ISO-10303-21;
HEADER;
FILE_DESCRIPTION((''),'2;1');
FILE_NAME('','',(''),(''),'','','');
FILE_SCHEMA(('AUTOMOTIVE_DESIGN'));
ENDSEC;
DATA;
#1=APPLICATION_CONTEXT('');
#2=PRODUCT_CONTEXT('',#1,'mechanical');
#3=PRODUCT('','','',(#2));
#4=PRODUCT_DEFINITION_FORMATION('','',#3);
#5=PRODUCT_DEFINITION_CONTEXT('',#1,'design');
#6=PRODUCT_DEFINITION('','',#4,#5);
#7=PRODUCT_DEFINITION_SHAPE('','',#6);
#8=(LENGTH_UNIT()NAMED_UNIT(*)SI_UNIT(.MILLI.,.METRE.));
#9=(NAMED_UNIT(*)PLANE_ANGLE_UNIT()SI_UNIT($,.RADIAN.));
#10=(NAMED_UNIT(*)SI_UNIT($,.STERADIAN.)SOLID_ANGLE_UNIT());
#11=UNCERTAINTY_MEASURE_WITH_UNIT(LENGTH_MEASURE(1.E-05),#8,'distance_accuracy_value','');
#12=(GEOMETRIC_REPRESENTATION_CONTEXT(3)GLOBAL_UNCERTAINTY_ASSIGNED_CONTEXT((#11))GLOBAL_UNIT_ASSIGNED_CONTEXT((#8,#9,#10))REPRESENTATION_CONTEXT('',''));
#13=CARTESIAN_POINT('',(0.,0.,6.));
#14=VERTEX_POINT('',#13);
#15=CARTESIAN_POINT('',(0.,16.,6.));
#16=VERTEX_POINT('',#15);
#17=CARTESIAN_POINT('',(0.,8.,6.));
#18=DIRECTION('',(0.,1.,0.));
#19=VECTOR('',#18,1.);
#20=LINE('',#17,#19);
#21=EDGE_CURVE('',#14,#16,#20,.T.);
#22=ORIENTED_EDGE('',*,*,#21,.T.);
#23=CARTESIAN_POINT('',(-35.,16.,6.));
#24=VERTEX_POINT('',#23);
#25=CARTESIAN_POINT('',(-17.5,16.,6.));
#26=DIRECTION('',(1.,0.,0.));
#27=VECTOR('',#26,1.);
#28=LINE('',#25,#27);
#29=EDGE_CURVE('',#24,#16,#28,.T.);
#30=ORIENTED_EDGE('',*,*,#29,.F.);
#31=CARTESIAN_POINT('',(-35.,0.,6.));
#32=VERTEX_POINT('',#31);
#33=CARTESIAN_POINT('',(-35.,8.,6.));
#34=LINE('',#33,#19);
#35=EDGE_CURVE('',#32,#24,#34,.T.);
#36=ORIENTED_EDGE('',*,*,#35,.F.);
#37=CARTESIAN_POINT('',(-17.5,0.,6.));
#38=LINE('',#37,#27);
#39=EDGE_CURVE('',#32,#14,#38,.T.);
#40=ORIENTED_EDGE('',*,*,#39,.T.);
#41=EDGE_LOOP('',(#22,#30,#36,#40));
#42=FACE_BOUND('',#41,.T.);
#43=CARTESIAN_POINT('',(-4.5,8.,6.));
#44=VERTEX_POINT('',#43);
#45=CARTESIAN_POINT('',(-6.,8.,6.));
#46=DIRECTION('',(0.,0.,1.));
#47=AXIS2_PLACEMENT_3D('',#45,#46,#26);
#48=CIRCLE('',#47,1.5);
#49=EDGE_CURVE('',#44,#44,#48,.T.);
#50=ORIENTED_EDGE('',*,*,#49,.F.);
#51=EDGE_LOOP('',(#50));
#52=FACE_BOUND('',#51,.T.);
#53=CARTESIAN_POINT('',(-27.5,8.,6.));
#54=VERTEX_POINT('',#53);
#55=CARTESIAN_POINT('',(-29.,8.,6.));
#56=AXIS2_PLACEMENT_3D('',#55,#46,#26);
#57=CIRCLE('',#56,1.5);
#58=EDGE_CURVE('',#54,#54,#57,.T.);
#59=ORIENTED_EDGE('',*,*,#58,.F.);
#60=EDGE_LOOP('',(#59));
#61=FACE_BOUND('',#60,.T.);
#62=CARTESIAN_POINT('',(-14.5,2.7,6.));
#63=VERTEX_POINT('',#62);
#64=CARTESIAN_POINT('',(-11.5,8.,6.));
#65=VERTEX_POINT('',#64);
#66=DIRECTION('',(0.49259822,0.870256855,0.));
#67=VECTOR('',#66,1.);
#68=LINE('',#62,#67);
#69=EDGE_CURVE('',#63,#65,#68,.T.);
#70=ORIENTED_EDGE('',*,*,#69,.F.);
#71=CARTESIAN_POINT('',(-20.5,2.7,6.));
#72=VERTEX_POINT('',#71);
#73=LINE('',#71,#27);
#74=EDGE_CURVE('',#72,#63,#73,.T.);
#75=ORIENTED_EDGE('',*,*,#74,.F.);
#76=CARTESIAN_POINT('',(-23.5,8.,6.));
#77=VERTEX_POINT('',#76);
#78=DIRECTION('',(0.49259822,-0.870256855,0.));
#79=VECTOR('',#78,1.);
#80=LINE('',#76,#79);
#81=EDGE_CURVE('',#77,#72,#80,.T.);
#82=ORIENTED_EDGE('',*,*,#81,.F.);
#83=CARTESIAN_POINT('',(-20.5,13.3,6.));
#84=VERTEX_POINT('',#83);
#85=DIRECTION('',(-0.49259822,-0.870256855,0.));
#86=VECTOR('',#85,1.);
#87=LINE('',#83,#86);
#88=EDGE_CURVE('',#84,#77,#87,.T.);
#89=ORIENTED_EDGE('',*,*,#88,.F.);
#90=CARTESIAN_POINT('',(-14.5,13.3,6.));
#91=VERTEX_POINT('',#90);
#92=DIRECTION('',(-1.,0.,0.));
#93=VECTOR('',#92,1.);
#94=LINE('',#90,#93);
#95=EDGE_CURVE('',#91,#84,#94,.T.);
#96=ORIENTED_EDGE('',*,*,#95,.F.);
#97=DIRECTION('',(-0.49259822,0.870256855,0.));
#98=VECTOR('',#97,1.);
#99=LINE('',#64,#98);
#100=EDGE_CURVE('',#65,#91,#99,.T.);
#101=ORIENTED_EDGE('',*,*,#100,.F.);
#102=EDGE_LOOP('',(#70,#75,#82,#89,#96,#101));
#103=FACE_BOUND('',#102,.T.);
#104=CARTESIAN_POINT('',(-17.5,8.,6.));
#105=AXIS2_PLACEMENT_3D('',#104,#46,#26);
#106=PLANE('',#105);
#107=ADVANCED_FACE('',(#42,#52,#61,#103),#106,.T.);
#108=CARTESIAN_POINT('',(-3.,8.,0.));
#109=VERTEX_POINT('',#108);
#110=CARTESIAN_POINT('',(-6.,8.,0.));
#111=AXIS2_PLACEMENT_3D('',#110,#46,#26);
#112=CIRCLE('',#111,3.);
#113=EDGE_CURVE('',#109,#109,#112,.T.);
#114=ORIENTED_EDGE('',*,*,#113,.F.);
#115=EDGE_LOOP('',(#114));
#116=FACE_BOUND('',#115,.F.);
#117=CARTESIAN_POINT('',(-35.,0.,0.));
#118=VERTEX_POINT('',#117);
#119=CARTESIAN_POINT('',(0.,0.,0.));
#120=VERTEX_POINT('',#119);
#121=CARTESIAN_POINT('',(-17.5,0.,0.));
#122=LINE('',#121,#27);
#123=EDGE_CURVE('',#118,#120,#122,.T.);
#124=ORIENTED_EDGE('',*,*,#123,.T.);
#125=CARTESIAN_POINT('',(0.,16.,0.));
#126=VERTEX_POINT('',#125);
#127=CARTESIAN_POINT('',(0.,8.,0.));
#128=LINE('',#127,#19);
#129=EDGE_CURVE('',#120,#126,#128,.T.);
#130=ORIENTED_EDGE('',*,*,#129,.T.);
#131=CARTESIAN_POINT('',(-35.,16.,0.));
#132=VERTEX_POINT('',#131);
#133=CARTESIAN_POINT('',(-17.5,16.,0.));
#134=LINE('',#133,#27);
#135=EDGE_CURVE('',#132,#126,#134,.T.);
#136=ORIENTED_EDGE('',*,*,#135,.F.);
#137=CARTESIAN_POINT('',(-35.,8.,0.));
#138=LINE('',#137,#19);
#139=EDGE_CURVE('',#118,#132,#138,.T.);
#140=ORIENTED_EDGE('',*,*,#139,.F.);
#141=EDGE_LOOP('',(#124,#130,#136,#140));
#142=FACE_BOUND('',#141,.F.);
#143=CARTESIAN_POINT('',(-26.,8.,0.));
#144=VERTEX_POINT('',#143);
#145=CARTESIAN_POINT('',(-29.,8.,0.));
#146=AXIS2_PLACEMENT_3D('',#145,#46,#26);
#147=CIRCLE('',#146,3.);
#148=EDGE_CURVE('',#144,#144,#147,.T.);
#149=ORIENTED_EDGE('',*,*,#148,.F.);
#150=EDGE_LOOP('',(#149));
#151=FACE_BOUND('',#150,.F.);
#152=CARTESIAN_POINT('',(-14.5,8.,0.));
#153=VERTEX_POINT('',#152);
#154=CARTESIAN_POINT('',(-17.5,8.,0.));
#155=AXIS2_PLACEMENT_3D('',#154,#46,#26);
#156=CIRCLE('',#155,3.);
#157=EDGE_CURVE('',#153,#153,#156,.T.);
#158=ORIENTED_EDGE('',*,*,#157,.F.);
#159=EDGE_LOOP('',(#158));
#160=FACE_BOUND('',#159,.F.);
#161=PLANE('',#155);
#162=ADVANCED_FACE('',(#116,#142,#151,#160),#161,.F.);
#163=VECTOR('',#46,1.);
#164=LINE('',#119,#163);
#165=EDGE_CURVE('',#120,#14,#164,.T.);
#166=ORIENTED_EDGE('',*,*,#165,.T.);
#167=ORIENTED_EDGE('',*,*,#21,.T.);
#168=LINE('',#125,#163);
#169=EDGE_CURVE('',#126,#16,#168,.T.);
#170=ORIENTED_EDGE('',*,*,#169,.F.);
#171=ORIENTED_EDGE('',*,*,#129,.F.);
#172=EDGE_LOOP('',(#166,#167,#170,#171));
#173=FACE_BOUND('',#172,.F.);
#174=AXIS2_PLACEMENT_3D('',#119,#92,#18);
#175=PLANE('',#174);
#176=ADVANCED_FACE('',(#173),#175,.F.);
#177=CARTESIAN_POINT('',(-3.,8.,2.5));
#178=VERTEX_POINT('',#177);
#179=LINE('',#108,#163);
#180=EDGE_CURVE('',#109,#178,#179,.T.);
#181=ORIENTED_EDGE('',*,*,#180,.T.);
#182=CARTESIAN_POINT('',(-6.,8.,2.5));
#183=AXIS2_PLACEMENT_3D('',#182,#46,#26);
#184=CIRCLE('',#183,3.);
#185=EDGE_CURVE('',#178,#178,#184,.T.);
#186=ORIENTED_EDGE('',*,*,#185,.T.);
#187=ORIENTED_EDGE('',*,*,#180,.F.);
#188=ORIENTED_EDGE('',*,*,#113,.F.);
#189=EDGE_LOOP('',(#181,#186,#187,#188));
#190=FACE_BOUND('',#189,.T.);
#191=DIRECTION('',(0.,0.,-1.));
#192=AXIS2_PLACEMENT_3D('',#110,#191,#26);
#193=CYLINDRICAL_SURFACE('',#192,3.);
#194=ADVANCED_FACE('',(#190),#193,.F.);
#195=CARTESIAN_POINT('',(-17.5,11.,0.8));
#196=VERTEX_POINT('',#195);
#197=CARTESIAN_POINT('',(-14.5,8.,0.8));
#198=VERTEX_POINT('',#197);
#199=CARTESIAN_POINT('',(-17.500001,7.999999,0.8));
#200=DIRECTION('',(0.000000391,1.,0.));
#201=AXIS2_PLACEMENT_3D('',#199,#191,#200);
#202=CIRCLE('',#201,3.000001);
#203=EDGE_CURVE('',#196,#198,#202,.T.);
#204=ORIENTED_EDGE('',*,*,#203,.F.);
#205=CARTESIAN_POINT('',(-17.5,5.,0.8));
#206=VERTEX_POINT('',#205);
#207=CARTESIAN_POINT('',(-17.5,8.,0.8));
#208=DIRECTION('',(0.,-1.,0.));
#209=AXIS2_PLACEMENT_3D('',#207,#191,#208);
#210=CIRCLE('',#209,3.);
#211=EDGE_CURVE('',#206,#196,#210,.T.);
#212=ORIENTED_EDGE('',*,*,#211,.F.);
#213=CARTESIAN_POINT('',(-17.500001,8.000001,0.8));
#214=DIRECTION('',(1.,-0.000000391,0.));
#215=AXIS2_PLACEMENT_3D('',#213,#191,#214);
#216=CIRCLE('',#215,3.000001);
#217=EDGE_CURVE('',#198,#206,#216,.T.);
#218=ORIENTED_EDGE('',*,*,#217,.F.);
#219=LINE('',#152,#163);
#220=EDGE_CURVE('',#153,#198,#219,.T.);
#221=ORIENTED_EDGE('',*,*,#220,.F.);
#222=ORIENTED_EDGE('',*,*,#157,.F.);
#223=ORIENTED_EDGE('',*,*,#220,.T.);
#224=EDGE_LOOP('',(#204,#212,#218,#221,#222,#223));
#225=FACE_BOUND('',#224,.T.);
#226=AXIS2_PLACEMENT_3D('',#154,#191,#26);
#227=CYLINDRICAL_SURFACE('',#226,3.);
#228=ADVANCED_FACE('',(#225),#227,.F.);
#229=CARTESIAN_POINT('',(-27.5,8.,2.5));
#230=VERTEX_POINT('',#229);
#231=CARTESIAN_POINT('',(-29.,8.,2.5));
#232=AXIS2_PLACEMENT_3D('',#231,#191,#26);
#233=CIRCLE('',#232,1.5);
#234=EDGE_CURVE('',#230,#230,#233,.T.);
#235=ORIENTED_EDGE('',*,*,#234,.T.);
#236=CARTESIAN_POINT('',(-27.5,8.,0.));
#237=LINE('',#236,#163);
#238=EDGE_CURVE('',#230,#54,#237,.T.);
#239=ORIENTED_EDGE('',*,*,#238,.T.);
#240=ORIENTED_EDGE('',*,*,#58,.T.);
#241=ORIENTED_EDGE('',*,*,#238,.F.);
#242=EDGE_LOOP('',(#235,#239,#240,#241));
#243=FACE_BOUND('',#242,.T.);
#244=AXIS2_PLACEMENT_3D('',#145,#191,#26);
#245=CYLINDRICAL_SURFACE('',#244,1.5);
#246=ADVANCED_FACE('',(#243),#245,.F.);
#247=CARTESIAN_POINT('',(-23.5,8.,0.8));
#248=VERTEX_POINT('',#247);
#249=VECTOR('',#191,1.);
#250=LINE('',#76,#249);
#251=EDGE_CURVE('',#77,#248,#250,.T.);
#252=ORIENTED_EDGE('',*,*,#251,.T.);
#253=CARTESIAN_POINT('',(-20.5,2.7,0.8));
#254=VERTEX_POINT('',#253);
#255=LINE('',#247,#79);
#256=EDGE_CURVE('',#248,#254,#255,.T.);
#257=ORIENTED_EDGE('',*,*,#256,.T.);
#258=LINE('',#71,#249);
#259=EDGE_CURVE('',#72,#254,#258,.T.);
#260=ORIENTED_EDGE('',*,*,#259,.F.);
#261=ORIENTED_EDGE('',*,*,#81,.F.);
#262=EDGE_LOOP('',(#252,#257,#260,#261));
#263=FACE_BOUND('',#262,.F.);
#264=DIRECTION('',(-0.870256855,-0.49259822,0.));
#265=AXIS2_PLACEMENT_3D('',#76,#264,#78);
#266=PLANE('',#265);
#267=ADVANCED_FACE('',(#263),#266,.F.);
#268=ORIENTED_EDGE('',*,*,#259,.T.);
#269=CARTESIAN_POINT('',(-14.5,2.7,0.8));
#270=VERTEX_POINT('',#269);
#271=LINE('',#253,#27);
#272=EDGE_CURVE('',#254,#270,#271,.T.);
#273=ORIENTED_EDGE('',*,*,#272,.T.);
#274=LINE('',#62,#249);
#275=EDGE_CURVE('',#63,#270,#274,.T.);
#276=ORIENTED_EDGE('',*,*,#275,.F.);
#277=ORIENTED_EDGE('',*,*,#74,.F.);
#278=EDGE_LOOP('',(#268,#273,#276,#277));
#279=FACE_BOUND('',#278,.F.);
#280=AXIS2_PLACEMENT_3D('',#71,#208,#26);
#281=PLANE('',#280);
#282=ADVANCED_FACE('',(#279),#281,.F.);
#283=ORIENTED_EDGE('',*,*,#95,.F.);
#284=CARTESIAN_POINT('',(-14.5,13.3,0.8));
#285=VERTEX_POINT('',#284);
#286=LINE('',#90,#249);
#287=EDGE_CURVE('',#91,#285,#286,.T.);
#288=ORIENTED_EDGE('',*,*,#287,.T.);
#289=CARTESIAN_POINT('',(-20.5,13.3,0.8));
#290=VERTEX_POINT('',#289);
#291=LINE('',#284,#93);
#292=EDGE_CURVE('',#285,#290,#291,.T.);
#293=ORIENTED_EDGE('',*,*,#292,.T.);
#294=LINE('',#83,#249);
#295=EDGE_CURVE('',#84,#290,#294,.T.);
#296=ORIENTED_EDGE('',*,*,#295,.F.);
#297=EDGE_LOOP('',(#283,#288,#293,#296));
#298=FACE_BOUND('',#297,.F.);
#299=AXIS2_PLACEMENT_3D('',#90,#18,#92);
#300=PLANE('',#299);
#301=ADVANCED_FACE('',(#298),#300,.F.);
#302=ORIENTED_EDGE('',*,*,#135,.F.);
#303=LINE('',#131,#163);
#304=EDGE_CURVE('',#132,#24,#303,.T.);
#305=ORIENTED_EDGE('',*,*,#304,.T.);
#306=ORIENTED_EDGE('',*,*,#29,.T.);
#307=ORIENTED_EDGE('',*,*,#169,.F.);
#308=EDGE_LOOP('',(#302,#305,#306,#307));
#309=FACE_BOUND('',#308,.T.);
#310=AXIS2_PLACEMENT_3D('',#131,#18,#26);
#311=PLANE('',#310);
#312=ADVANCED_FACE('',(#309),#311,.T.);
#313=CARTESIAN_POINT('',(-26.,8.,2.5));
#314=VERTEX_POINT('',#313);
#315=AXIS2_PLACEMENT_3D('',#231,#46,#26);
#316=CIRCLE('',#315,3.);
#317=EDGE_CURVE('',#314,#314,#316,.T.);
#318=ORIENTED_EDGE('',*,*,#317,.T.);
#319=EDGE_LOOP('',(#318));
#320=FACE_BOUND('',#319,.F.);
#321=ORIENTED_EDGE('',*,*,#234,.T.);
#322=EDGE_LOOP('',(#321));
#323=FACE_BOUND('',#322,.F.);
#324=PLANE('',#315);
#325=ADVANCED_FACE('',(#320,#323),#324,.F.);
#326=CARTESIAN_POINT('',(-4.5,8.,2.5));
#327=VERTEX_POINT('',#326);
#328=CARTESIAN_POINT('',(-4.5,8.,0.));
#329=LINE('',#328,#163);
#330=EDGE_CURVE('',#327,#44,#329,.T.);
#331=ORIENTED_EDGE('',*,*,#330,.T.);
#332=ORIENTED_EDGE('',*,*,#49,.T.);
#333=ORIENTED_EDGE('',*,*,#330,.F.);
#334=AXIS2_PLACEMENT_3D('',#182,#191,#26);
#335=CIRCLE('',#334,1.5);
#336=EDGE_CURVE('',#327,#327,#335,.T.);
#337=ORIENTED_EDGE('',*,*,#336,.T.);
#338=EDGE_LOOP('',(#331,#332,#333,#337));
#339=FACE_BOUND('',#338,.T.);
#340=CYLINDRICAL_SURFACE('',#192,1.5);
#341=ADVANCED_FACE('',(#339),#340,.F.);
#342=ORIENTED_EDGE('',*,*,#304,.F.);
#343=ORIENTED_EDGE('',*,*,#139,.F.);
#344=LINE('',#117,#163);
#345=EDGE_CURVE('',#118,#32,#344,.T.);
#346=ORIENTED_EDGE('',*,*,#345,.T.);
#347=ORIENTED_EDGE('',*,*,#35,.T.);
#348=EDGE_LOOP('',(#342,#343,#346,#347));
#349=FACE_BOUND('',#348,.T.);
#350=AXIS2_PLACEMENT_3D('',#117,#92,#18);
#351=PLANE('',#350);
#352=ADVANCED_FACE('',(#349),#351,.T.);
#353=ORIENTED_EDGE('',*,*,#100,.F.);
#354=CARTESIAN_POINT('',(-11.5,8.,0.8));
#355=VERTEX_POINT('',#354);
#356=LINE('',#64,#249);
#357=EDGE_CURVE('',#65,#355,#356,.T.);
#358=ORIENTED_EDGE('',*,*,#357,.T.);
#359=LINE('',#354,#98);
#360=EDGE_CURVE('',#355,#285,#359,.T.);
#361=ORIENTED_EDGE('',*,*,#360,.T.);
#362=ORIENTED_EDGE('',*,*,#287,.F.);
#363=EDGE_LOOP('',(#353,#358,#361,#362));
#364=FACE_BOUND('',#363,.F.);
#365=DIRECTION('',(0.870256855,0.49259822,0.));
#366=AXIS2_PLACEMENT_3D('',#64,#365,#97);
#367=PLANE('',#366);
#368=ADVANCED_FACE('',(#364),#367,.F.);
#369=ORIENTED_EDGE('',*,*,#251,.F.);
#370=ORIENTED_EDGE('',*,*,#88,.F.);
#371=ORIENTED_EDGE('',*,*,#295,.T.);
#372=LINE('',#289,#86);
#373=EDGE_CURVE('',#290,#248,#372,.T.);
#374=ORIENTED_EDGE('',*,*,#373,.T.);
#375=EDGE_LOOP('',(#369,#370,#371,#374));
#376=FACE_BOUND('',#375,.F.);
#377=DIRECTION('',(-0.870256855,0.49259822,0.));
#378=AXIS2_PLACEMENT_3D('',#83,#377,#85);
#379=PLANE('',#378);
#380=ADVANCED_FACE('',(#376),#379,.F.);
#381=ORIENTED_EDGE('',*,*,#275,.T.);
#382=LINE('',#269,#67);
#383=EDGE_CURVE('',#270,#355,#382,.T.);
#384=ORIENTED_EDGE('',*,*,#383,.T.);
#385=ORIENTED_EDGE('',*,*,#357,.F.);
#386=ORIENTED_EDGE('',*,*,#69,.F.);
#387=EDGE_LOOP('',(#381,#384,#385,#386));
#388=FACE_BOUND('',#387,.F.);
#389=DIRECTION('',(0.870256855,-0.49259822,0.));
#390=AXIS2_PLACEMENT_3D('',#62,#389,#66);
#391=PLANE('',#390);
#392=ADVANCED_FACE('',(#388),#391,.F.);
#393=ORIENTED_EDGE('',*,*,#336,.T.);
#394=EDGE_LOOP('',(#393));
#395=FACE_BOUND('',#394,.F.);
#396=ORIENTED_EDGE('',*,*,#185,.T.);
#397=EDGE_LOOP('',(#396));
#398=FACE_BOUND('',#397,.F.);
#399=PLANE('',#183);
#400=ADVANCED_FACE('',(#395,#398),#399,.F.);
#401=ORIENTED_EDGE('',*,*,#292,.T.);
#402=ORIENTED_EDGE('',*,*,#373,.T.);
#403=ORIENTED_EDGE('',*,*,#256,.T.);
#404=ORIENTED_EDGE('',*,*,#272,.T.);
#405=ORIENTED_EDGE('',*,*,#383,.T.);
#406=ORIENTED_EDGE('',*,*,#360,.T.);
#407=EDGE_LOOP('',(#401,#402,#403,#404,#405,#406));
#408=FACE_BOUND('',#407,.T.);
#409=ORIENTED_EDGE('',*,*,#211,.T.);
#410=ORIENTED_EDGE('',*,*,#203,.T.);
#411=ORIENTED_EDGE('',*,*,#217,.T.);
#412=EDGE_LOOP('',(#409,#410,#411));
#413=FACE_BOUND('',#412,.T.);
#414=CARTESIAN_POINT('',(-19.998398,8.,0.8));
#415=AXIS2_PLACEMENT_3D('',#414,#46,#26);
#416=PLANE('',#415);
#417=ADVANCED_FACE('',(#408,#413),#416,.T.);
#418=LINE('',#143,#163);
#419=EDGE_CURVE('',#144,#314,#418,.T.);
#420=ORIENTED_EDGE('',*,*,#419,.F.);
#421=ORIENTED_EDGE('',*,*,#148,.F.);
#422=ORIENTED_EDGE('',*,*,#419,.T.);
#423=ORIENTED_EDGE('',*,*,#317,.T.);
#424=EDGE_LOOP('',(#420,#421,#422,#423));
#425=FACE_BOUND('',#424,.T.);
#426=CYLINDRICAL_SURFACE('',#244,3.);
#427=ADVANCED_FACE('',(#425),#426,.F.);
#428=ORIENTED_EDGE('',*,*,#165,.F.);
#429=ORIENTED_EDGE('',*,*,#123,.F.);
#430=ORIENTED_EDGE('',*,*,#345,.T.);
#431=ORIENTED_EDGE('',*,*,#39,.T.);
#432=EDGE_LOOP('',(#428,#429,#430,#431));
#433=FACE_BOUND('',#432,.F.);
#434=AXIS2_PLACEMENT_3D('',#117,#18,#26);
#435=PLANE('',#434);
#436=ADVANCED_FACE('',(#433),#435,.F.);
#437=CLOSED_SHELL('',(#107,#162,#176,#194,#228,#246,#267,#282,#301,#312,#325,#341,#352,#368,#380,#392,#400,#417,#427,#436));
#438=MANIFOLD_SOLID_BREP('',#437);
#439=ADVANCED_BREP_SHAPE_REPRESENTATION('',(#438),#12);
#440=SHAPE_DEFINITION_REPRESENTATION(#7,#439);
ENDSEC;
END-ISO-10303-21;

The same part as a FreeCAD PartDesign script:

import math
import FreeCAD as App
import Part
import Sketcher
Q = App.Units.Quantity

doc = App.newDocument("Part")
body = doc.addObject("PartDesign::Body", "Body")

# Sketch on XY plane
sketch1 = body.newObject("Sketcher::SketchObject", "Sketch")
sketch1.AttachmentSupport = (doc.getObject("XY_Plane"), [""])
sketch1.MapMode = "FlatFace"
sketch1.addGeometry([
    Part.LineSegment(App.Vector(-35, 16, 0), App.Vector(-35, 0, 0)),  # 0
    Part.LineSegment(App.Vector(-35, 0, 0), App.Vector(0, 0, 0)),  # 1
    Part.LineSegment(App.Vector(0, 0, 0), App.Vector(0, 16, 0)),  # 2
    Part.LineSegment(App.Vector(0, 16, 0), App.Vector(-35, 16, 0)),  # 3
    Part.Circle(App.Vector(-29, 8, 0), App.Vector(0, 0, 1), 1.5),  # 4
    Part.Circle(App.Vector(-17.5, 8, 0), App.Vector(0, 0, 1), 3),  # 5
    Part.Circle(App.Vector(-6, 8, 0), App.Vector(0, 0, 1), 1.5),  # 6
], False)
sketch1.addConstraint([
    Sketcher.Constraint("Coincident", 0, 2, 1, 1),
    Sketcher.Constraint("Coincident", 1, 2, 2, 1),
    Sketcher.Constraint("Coincident", 2, 2, 3, 1),
    Sketcher.Constraint("Coincident", 3, 2, 0, 1),
    Sketcher.Constraint("Vertical", 0),
    Sketcher.Constraint("Horizontal", 1),
    Sketcher.Constraint("Vertical", 2),
    Sketcher.Constraint("Horizontal", 3),
    Sketcher.Constraint("Coincident", 1, 2, -1, 1),
    Sketcher.Constraint("Equal", 4, 6),
    Sketcher.Constraint("Horizontal", 4, 3, 5, 3),
    Sketcher.Constraint("Horizontal", 5, 3, 6, 3),
    Sketcher.Constraint("Diameter", 4, Q("3 mm")),
    Sketcher.Constraint("Diameter", 5, Q("6 mm")),
    Sketcher.Constraint("DistanceX", 1, 1, 1, 2, Q("35 mm")),
    Sketcher.Constraint("DistanceY", 0, 2, 0, 1, Q("16 mm")),
    Sketcher.Constraint("DistanceX", 4, 3, -1, 1, Q("29 mm")),
    Sketcher.Constraint("DistanceY", -1, 1, 4, 3, Q("8 mm")),
    Sketcher.Constraint("DistanceX", 6, 3, -1, 1, Q("6 mm")),
    Sketcher.Constraint("DistanceX", 5, 3, -1, 1, Q("17.5 mm")),
])
pad1 = body.newObject("PartDesign::Pad", "Pad")
pad1.Profile = sketch1
pad1.Length = 6

# Sketch on XY plane
sketch2 = body.newObject("Sketcher::SketchObject", "Sketch001")
sketch2.AttachmentSupport = (doc.getObject("XY_Plane"), [""])
sketch2.MapMode = "FlatFace"
sketch2.AttachmentOffset = App.Placement(App.Vector(0, 0, 6), App.Rotation())
sketch2.addGeometry([
    Part.LineSegment(App.Vector(-20.5, 2.7, 0), App.Vector(-14.5, 2.7, 0)),  # 0
    Part.LineSegment(App.Vector(-14.5, 2.7, 0), App.Vector(-11.5, 8, 0)),  # 1
    Part.LineSegment(App.Vector(-11.5, 8, 0), App.Vector(-14.5, 13.3, 0)),  # 2
    Part.LineSegment(App.Vector(-14.5, 13.3, 0), App.Vector(-20.5, 13.3, 0)),  # 3
    Part.LineSegment(App.Vector(-20.5, 13.3, 0), App.Vector(-23.5, 8, 0)),  # 4
    Part.LineSegment(App.Vector(-23.5, 8, 0), App.Vector(-20.5, 2.7, 0)),  # 5
    Part.ArcOfCircle(Part.Circle(App.Vector(-17.5, 8, 0), App.Vector(0, 0, 1), 3), math.radians(90), math.radians(270)),  # 6
    Part.ArcOfCircle(Part.Circle(App.Vector(-17.500001, 7.999999, 0), App.Vector(0, 0, 1), 3.000001), math.radians(0.000022), math.radians(89.999978)),  # 7
    Part.ArcOfCircle(Part.Circle(App.Vector(-17.500001, 8.000001, 0), App.Vector(0, 0, 1), 3.000001), math.radians(-89.999978), math.radians(-0.000022)),  # 8
], False)
sketch2.addConstraint([
    Sketcher.Constraint("Coincident", 0, 2, 1, 1),
    Sketcher.Constraint("Coincident", 1, 2, 2, 1),
    Sketcher.Constraint("Coincident", 2, 2, 3, 1),
    Sketcher.Constraint("Coincident", 3, 2, 4, 1),
    Sketcher.Constraint("Coincident", 4, 2, 5, 1),
    Sketcher.Constraint("Coincident", 5, 2, 0, 1),
    Sketcher.Constraint("Tangent", 6, 1, 7, 2),
    Sketcher.Constraint("Tangent", 7, 1, 8, 2),
    Sketcher.Constraint("Tangent", 8, 1, 6, 2),
    Sketcher.Constraint("Horizontal", 0),
    Sketcher.Constraint("Horizontal", 3),
    Sketcher.Constraint("Parallel", 1, 4),
    Sketcher.Constraint("Parallel", 2, 5),
    Sketcher.Constraint("Horizontal", 8, 3, 1, 2),
    Sketcher.Constraint("Horizontal", 1, 2, 4, 2),
    Sketcher.Constraint("Horizontal", 4, 2, 7, 1),
    Sketcher.Constraint("Vertical", 0, 2, 2, 2),
    Sketcher.Constraint("Vertical", 3, 2, 5, 2),
    Sketcher.Constraint("Vertical", 8, 3, 6, 1),
    Sketcher.Constraint("Vertical", 2, 2, 7, 1),
    Sketcher.Constraint("Vertical", 6, 1, 8, 1),
    Sketcher.Constraint("Radius", 6, Q("3 mm")),
    Sketcher.Constraint("DistanceX", 0, 1, 0, 2, Q("6 mm")),
    Sketcher.Constraint("DistanceY", -1, 1, 6, 3, Q("8 mm")),
    Sketcher.Constraint("DistanceX", 6, 3, 1, 2, Q("6 mm")),
    Sketcher.Constraint("DistanceX", 6, 3, -1, 1, Q("17.5 mm")),
    Sketcher.Constraint("DistanceY", -1, 1, 0, 2, Q("2.7 mm")),
])
pocket1 = body.newObject("PartDesign::Pocket", "Pocket")
pocket1.Profile = sketch2
pocket1.Length = 5.2

# Sketch on XY plane
sketch3 = body.newObject("Sketcher::SketchObject", "Sketch002")
sketch3.AttachmentSupport = (doc.getObject("XY_Plane"), [""])
sketch3.MapMode = "FlatFace"
sketch3.addGeometry([
    Part.Circle(App.Vector(-29, 8, 0), App.Vector(0, 0, 1), 3),
    Part.Circle(App.Vector(-6, 8, 0), App.Vector(0, 0, 1), 3),
], False)
sketch3.addConstraint([
    Sketcher.Constraint("Equal", 0, 1),
    Sketcher.Constraint("Horizontal", 0, 3, 1, 3),
    Sketcher.Constraint("Diameter", 0, Q("6 mm")),
    Sketcher.Constraint("DistanceX", 0, 3, -1, 1, Q("29 mm")),
    Sketcher.Constraint("DistanceY", -1, 1, 0, 3, Q("8 mm")),
    Sketcher.Constraint("DistanceX", 1, 3, -1, 1, Q("6 mm")),
])
pocket2 = body.newObject("PartDesign::Pocket", "Pocket001")
pocket2.Profile = sketch3
pocket2.Length = 2.5
pocket2.Reversed = True

doc.recompute()
